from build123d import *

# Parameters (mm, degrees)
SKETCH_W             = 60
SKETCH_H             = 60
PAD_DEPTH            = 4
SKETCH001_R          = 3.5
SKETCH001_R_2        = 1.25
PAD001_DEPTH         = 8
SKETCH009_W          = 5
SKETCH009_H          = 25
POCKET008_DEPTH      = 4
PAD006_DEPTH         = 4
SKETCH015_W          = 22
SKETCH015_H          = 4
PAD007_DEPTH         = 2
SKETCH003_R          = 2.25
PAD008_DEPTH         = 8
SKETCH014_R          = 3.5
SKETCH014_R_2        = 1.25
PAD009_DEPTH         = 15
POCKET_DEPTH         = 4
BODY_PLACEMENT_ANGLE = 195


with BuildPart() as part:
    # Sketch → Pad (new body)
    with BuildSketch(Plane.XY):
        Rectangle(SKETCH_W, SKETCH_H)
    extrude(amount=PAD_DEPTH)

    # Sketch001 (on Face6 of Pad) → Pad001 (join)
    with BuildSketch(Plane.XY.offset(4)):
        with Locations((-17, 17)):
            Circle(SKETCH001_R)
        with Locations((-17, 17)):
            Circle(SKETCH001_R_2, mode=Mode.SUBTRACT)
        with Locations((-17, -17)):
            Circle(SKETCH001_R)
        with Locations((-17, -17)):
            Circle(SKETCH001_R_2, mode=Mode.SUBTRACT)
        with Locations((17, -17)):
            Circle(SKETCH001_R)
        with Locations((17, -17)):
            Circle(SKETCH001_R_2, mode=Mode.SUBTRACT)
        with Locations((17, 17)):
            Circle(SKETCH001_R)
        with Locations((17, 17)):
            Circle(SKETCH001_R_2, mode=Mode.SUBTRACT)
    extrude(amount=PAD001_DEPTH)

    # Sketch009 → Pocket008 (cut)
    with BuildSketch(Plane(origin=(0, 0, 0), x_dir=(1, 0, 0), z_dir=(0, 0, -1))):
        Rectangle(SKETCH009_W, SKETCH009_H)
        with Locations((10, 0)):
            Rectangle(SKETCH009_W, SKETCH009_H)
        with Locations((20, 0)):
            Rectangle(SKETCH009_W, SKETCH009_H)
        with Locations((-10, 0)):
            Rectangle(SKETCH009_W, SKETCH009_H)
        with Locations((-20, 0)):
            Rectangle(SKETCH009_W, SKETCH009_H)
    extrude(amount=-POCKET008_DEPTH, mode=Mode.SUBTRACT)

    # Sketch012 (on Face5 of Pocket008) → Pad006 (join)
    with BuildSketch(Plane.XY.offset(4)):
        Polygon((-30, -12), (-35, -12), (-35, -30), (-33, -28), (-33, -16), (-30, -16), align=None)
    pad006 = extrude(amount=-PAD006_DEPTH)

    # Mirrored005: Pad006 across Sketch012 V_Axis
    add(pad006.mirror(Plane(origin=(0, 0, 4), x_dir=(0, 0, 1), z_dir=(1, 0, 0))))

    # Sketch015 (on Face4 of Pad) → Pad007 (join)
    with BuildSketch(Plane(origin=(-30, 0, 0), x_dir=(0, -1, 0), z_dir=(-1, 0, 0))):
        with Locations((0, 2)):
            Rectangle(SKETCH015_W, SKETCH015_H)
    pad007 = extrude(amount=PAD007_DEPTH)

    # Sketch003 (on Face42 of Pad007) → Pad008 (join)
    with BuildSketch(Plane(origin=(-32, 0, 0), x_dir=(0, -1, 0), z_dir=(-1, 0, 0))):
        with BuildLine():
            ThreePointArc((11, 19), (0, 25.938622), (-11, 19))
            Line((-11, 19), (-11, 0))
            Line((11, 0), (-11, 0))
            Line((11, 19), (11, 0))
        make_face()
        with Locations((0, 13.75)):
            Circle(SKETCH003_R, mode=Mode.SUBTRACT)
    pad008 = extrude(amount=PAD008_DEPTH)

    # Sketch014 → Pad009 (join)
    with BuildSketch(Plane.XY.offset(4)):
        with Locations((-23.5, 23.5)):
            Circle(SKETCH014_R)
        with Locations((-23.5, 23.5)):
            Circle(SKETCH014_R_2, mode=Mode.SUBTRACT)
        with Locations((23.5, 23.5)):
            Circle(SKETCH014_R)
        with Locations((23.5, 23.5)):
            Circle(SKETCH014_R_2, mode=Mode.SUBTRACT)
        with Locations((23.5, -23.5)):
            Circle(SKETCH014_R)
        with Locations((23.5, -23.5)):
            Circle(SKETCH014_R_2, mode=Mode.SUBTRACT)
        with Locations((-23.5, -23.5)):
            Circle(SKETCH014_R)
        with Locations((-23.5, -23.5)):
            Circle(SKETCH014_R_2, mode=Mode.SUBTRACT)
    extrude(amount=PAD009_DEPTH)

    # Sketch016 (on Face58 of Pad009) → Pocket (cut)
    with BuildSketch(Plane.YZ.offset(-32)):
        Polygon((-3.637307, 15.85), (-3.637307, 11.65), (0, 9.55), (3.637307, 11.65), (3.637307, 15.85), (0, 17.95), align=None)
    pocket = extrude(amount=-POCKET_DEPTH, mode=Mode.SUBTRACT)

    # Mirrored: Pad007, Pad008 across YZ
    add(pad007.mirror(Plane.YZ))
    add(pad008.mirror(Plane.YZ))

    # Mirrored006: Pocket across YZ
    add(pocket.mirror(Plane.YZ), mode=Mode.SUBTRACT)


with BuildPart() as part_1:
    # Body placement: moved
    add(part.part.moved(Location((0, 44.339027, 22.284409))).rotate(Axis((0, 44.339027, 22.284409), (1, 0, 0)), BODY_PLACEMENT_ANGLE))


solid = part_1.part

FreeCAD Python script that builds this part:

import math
import FreeCAD as App
import Part
import Sketcher
Q = App.Units.Quantity


def add_polygon(sketch, points):
    """Adds a closed chain of lines whose ends are joined by coincident constraints."""
    first, n = sketch.GeometryCount, len(points)
    for a, b in zip(points, points[1:] + points[:1]):
        sketch.addGeometry(Part.LineSegment(App.Vector(*a, 0), App.Vector(*b, 0)), False)
    for i in range(n):
        sketch.addConstraint(Sketcher.Constraint("Coincident", first + i, 2, first + (i + 1) % n, 1))

doc = App.newDocument("Part")
body = doc.addObject("PartDesign::Body", "Body")

# Sketch on XY plane
sketch1 = body.newObject("Sketcher::SketchObject", "Sketch")
sketch1.AttachmentSupport = (doc.getObject("XY_Plane"), [""])
sketch1.MapMode = "FlatFace"
add_polygon(sketch1, [(-30, 30), (-30, -30), (30, -30), (30, 30)])  # lines 0-3
sketch1.addConstraint(Sketcher.Constraint("Vertical", 0))
sketch1.addConstraint(Sketcher.Constraint("Horizontal", 1))
sketch1.addConstraint(Sketcher.Constraint("Vertical", 2))
sketch1.addConstraint(Sketcher.Constraint("Horizontal", 3))
sketch1.addConstraint(Sketcher.Constraint("Symmetric", 0, 2, 2, 2, -1, 1))
sketch1.addConstraint(Sketcher.Constraint("Equal", 3, 0))
sketch1.addConstraint(Sketcher.Constraint("DistanceX", 1, 1, 1, 2, Q("60 mm")))
pad1 = body.newObject("PartDesign::Pad", "Pad")
pad1.Profile = sketch1
pad1.Length = 4

# Sketch on XY plane
sketch2 = body.newObject("Sketcher::SketchObject", "Sketch001")
sketch2.AttachmentSupport = (doc.getObject("XY_Plane"), [""])
sketch2.MapMode = "FlatFace"
sketch2.AttachmentOffset = App.Placement(App.Vector(0, 0, 4), App.Rotation())
sketch2.addGeometry(Part.Circle(App.Vector(-17, 17, 0), App.Vector(0, 0, 1), 3.5), False)
sketch2.addGeometry(Part.Circle(App.Vector(-17, 17, 0), App.Vector(0, 0, 1), 1.2), False)
sketch2.addGeometry(Part.Circle(App.Vector(-17, -17, 0), App.Vector(0, 0, 1), 3.5), False)
sketch2.addGeometry(Part.Circle(App.Vector(-17, -17, 0), App.Vector(0, 0, 1), 1.2), False)
sketch2.addGeometry(Part.Circle(App.Vector(17, -17, 0), App.Vector(0, 0, 1), 3.5), False)
sketch2.addGeometry(Part.Circle(App.Vector(17, -17, 0), App.Vector(0, 0, 1), 1.2), False)
sketch2.addGeometry(Part.Circle(App.Vector(17, 17, 0), App.Vector(0, 0, 1), 3.5), False)
sketch2.addGeometry(Part.Circle(App.Vector(17, 17, 0), App.Vector(0, 0, 1), 1.2), False)
sketch2.addConstraint(Sketcher.Constraint("Coincident", 1, 3, 0, 3))
sketch2.addConstraint(Sketcher.Constraint("Coincident", 3, 3, 2, 3))
sketch2.addConstraint(Sketcher.Constraint("Coincident", 5, 3, 4, 3))
sketch2.addConstraint(Sketcher.Constraint("Coincident", 7, 3, 6, 3))
sketch2.addConstraint(Sketcher.Constraint("Equal", 0, 2))
sketch2.addConstraint(Sketcher.Constraint("Equal", 1, 3))
sketch2.addConstraint(Sketcher.Constraint("Equal", 2, 4))
sketch2.addConstraint(Sketcher.Constraint("Equal", 3, 5))
sketch2.addConstraint(Sketcher.Constraint("Equal", 4, 6))
sketch2.addConstraint(Sketcher.Constraint("Equal", 5, 7))
sketch2.addConstraint(Sketcher.Constraint("Symmetric", 0, 3, 4, 3, -1, 1))
sketch2.addConstraint(Sketcher.Constraint("Symmetric", 2, 3, 6, 3, -1, 1))
sketch2.addConstraint(Sketcher.Constraint("Symmetric", 2, 3, 4, 3, -2))
sketch2.addConstraint(Sketcher.Constraint("Diameter", 0, Q("7 mm")))
sketch2.addConstraint(Sketcher.Constraint("Diameter", 1, Q("2.5 mm")))
sketch2.addConstraint(Sketcher.Constraint("DistanceX", 0, 3, -1, 1, Q("17 mm")))
sketch2.addConstraint(Sketcher.Constraint("DistanceY", -1, 1, 0, 3, Q("17 mm")))
pad2 = body.newObject("PartDesign::Pad", "Pad001")
pad2.Profile = sketch2
pad2.Length = 8

# Sketch on XY plane
sketch3 = body.newObject("Sketcher::SketchObject", "Sketch002")
sketch3.AttachmentSupport = (doc.getObject("XY_Plane"), [""])
sketch3.MapMode = "FlatFace"
add_polygon(sketch3, [(-2, -12), (-2, 12), (2, 12), (2, -12)])  # lines 0-3
add_polygon(sketch3, [(8, -12), (8, 12), (12, 12), (12, -12)])  # lines 4-7
add_polygon(sketch3, [(18, -12), (18, 12), (22, 12), (22, -12)])  # lines 8-11
add_polygon(sketch3, [(-12, -12), (-12, 12), (-8, 12), (-8, -12)])  # lines 12-15
add_polygon(sketch3, [(-22, -12), (-22, 12), (-18, 12), (-18, -12)])  # lines 16-19
sketch3.addConstraint(Sketcher.Constraint("Vertical", 0))
sketch3.addConstraint(Sketcher.Constraint("Horizontal", 1))
sketch3.addConstraint(Sketcher.Constraint("Vertical", 2))
sketch3.addConstraint(Sketcher.Constraint("Horizontal", 3))
sketch3.addConstraint(Sketcher.Constraint("Vertical", 4))
sketch3.addConstraint(Sketcher.Constraint("Horizontal", 5))
sketch3.addConstraint(Sketcher.Constraint("Vertical", 6))
sketch3.addConstraint(Sketcher.Constraint("Horizontal", 7))
sketch3.addConstraint(Sketcher.Constraint("Vertical", 8))
sketch3.addConstraint(Sketcher.Constraint("Horizontal", 9))
sketch3.addConstraint(Sketcher.Constraint("Vertical", 10))
sketch3.addConstraint(Sketcher.Constraint("Horizontal", 11))
sketch3.addConstraint(Sketcher.Constraint("Vertical", 12))
sketch3.addConstraint(Sketcher.Constraint("Horizontal", 13))
sketch3.addConstraint(Sketcher.Constraint("Vertical", 14))
sketch3.addConstraint(Sketcher.Constraint("Horizontal", 15))
sketch3.addConstraint(Sketcher.Constraint("Vertical", 16))
sketch3.addConstraint(Sketcher.Constraint("Horizontal", 17))
sketch3.addConstraint(Sketcher.Constraint("Vertical", 18))
sketch3.addConstraint(Sketcher.Constraint("Horizontal", 19))
sketch3.addConstraint(Sketcher.Constraint("Symmetric", 0, 2, 2, 2, -1, 1))
sketch3.addConstraint(Sketcher.Constraint("Symmetric", 6, 2, 12, 2, -1, 1))
sketch3.addConstraint(Sketcher.Constraint("Symmetric", 4, 2, 14, 2, -1, 1))
sketch3.addConstraint(Sketcher.Constraint("Symmetric", 10, 2, 16, 2, -1, 1))
sketch3.addConstraint(Sketcher.Constraint("Symmetric", 8, 2, 18, 2, -1, 1))
sketch3.addConstraint(Sketcher.Constraint("Horizontal", 1, 2, 4, 2))
sketch3.addConstraint(Sketcher.Constraint("Horizontal", 3, 2, 6, 2))
sketch3.addConstraint(Sketcher.Constraint("Horizontal", 5, 2, 8, 2))
sketch3.addConstraint(Sketcher.Constraint("Horizontal", 7, 2, 10, 2))
sketch3.addConstraint(Sketcher.Constraint("Equal", 3, 5))
sketch3.addConstraint(Sketcher.Constraint("Equal", 7, 9))
sketch3.addConstraint(Sketcher.Constraint("DistanceX", 1, 1, 1, 2, Q("5 mm")))
sketch3.addConstraint(Sketcher.Constraint("DistanceY", 0, 1, 0, 2, Q("25 mm")))
sketch3.addConstraint(Sketcher.Constraint("DistanceX", 1, 2, 4, 2, Q("5 mm")))
sketch3.addConstraint(Sketcher.Constraint("DistanceX", 5, 2, 8, 2, Q("5 mm")))
pocket1 = body.newObject("PartDesign::Pocket", "Pocket")
pocket1.Profile = sketch3
pocket1.Length = 4
pocket1.Reversed = True

# Sketch on XY plane
sketch4 = body.newObject("Sketcher::SketchObject", "Sketch003")
sketch4.AttachmentSupport = (doc.getObject("XY_Plane"), [""])
sketch4.MapMode = "FlatFace"
sketch4.AttachmentOffset = App.Placement(App.Vector(0, 0, 4), App.Rotation())
add_polygon(sketch4, [(-30, -12), (-35, -12), (-35, -30), (-33, -28), (-33, -16), (-30, -16)])  # lines 0-5
sketch4.addConstraint(Sketcher.Constraint("Horizontal", 0))
sketch4.addConstraint(Sketcher.Constraint("Vertical", 1))
sketch4.addConstraint(Sketcher.Constraint("Vertical", 3))
sketch4.addConstraint(Sketcher.Constraint("Horizontal", 4))
sketch4.addConstraint(Sketcher.Constraint("Vertical", 5))
sketch4.addConstraint(Sketcher.Constraint("DistanceX", 0, 2, 0, 1, Q("5 mm")))
sketch4.addConstraint(Sketcher.Constraint("DistanceX", 4, 1, 4, 2, Q("3 mm")))
sketch4.addConstraint(Sketcher.Constraint("DistanceY", 1, 2, 1, 1, Q("18 mm")))
sketch4.addConstraint(Sketcher.Constraint("DistanceY", 3, 1, 3, 2, Q("12 mm")))
sketch4.addConstraint(Sketcher.Constraint("DistanceY", 5, 1, 5, 2, Q("4 mm")))
sketch4.addConstraint(Sketcher.Constraint("DistanceX", 0, 2, -1, 1, Q("35 mm")))
sketch4.addConstraint(Sketcher.Constraint("DistanceY", 0, 2, -1, 1, Q("12 mm")))
pad3 = body.newObject("PartDesign::Pad", "Pad002")
pad3.Profile = sketch4
pad3.Length = 4
pad3.Reversed = True
doc.recompute()

mirrored = body.newObject("PartDesign::Mirrored", "Mirrored")
mirrored.Originals = [pad3]
mirrored.MirrorPlane = (doc.getObject("YZ_Plane"), [""])
body.Tip = mirrored

# Sketch on YZ plane
sketch5 = body.newObject("Sketcher::SketchObject", "Sketch004")
sketch5.AttachmentSupport = (doc.getObject("YZ_Plane"), [""])
sketch5.MapMode = "FlatFace"
sketch5.AttachmentOffset = App.Placement(App.Vector(0, 0, -30), App.Rotation())
add_polygon(sketch5, [(11, 4), (11, 0), (-11, 0), (-11, 4)])  # lines 0-3
sketch5.addConstraint(Sketcher.Constraint("Vertical", 0))
sketch5.addConstraint(Sketcher.Constraint("Horizontal", 1))
sketch5.addConstraint(Sketcher.Constraint("Vertical", 2))
sketch5.addConstraint(Sketcher.Constraint("Horizontal", 3))
sketch5.addConstraint(Sketcher.Constraint("Symmetric", 0, 2, 1, 2, -1, 1))
sketch5.addConstraint(Sketcher.Constraint("DistanceX", 1, 2, 1, 1, Q("22 mm")))
sketch5.addConstraint(Sketcher.Constraint("DistanceY", 0, 2, 0, 1, Q("4 mm")))
pad4 = body.newObject("PartDesign::Pad", "Pad003")
pad4.Profile = sketch5
pad4.Length = 2
pad4.Reversed = True

# Sketch on YZ plane
sketch6 = body.newObject("Sketcher::SketchObject", "Sketch005")
sketch6.AttachmentSupport = (doc.getObject("YZ_Plane"), [""])
sketch6.MapMode = "FlatFace"
sketch6.AttachmentOffset = App.Placement(App.Vector(0, 0, -32), App.Rotation())
sketch6.addGeometry(Part.ArcOfCircle(Part.Circle(App.Vector(0, 13.8, 0), App.Vector(0, 0, 1), 12.2), math.radians(26), math.radians(154)), False)
sketch6.addGeometry(Part.LineSegment(App.Vector(11, 19, 0), App.Vector(11, 0, 0)), False)
sketch6.addGeometry(Part.LineSegment(App.Vector(11, 0, 0), App.Vector(-11, 0, 0)), False)
sketch6.addGeometry(Part.LineSegment(App.Vector(-11, 0, 0), App.Vector(-11, 19, 0)), False)
sketch6.addGeometry(Part.Circle(App.Vector(0, 13.8, 0), App.Vector(0, 0, 1), 2.2), False)
sketch6.addConstraint(Sketcher.Constraint("Coincident", 0, 1, 1, 1))
sketch6.addConstraint(Sketcher.Constraint("Coincident", 1, 2, 2, 1))
sketch6.addConstraint(Sketcher.Constraint("Coincident", 2, 2, 3, 1))
sketch6.addConstraint(Sketcher.Constraint("Coincident", 3, 2, 0, 2))
sketch6.addConstraint(Sketcher.Constraint("Vertical", 1))
sketch6.addConstraint(Sketcher.Constraint("Horizontal", 2))
sketch6.addConstraint(Sketcher.Constraint("Vertical", 3))
sketch6.addConstraint(Sketcher.Constraint("Coincident", 4, 3, 0, 3))
sketch6.addConstraint(Sketcher.Constraint("Symmetric", 1, 2, 2, 2, -1, 1))
sketch6.addConstraint(Sketcher.Constraint("PointOnObject", 0, 3, -2))
sketch6.addConstraint(Sketcher.Constraint("Diameter", 4, Q("4.5 mm")))
sketch6.addConstraint(Sketcher.Constraint("DistanceX", 2, 2, 2, 1, Q("22 mm")))
sketch6.addConstraint(Sketcher.Constraint("DistanceY", 1, 2, 1, 1, Q("19 mm")))
sketch6.addConstraint(Sketcher.Constraint("DistanceY", -1, 1, 0, 3, Q("13.75 mm")))
pad5 = body.newObject("PartDesign::Pad", "Pad004")
pad5.Profile = sketch6
pad5.Length = 8
pad5.Reversed = True

# Sketch on XY plane
sketch7 = body.newObject("Sketcher::SketchObject", "Sketch006")
sketch7.AttachmentSupport = (doc.getObject("XY_Plane"), [""])
sketch7.MapMode = "FlatFace"
sketch7.AttachmentOffset = App.Placement(App.Vector(0, 0, 4), App.Rotation())
sketch7.addGeometry(Part.Circle(App.Vector(-23.5, 23.5, 0), App.Vector(0, 0, 1), 3.5), False)
sketch7.addGeometry(Part.Circle(App.Vector(-23.5, 23.5, 0), App.Vector(0, 0, 1), 1.2), False)
sketch7.addGeometry(Part.Circle(App.Vector(23.5, 23.5, 0), App.Vector(0, 0, 1), 3.5), False)
sketch7.addGeometry(Part.Circle(App.Vector(23.5, 23.5, 0), App.Vector(0, 0, 1), 1.2), False)
sketch7.addGeometry(Part.Circle(App.Vector(23.5, -23.5, 0), App.Vector(0, 0, 1), 3.5), False)
sketch7.addGeometry(Part.Circle(App.Vector(23.5, -23.5, 0), App.Vector(0, 0, 1), 1.2), False)
sketch7.addGeometry(Part.Circle(App.Vector(-23.5, -23.5, 0), App.Vector(0, 0, 1), 3.5), False)
sketch7.addGeometry(Part.Circle(App.Vector(-23.5, -23.5, 0), App.Vector(0, 0, 1), 1.2), False)
sketch7.addConstraint(Sketcher.Constraint("Coincident", 1, 3, 0, 3))
sketch7.addConstraint(Sketcher.Constraint("Coincident", 3, 3, 2, 3))
sketch7.addConstraint(Sketcher.Constraint("Coincident", 5, 3, 4, 3))
sketch7.addConstraint(Sketcher.Constraint("Coincident", 7, 3, 6, 3))
sketch7.addConstraint(Sketcher.Constraint("Equal", 0, 2))
sketch7.addConstraint(Sketcher.Constraint("Equal", 1, 3))
sketch7.addConstraint(Sketcher.Constraint("Equal", 2, 4))
sketch7.addConstraint(Sketcher.Constraint("Equal", 3, 5))
sketch7.addConstraint(Sketcher.Constraint("Equal", 4, 6))
sketch7.addConstraint(Sketcher.Constraint("Equal", 5, 7))
sketch7.addConstraint(Sketcher.Constraint("Symmetric", 0, 3, 4, 3, -1, 1))
sketch7.addConstraint(Sketcher.Constraint("Symmetric", 2, 3, 6, 3, -1, 1))
sketch7.addConstraint(Sketcher.Constraint("Symmetric", 0, 3, 2, 3, -2))
sketch7.addConstraint(Sketcher.Constraint("Diameter", 0, Q("7 mm")))
sketch7.addConstraint(Sketcher.Constraint("Diameter", 1, Q("2.5 mm")))
sketch7.addConstraint(Sketcher.Constraint("DistanceX", 0, 3, 2, 3, Q("47 mm")))
sketch7.addConstraint(Sketcher.Constraint("DistanceY", 4, 3, 2, 3, Q("47 mm")))
pad6 = body.newObject("PartDesign::Pad", "Pad005")
pad6.Profile = sketch7
pad6.Length = 15

# Sketch on YZ plane
sketch8 = body.newObject("Sketcher::SketchObject", "Sketch007")
sketch8.AttachmentSupport = (doc.getObject("YZ_Plane"), [""])
sketch8.MapMode = "FlatFace"
sketch8.AttachmentOffset = App.Placement(App.Vector(0, 0, -32), App.Rotation())
add_polygon(sketch8, [(-3.6, 15.8), (-3.6, 11.7), (0, 9.6), (3.6, 11.7), (3.6, 15.8), (0, 17.9)])  # lines 0-5
sketch8.addConstraint(Sketcher.Constraint("Vertical", 0))
sketch8.addConstraint(Sketcher.Constraint("Vertical", 3))
sketch8.addConstraint(Sketcher.Constraint("Symmetric", 0, 2, 2, 2, -2))
sketch8.addConstraint(Sketcher.Constraint("PointOnObject", 1, 2, -2))
sketch8.addConstraint(Sketcher.Constraint("PointOnObject", 4, 2, -2))
sketch8.addConstraint(Sketcher.Constraint("Parallel", 1, 4))
sketch8.addConstraint(Sketcher.Constraint("Parallel", 2, 5))
sketch8.addConstraint(Sketcher.Constraint("Angle", 1, Q("-29.999998 deg")))
sketch8.addConstraint(Sketcher.Constraint("DistanceY", 0, 2, 0, 1, Q("4.2 mm")))
sketch8.addConstraint(Sketcher.Constraint("Distance", 1, Q("4.2 mm")))
sketch8.addConstraint(Sketcher.Constraint("DistanceY", -1, 1, 0, 2, Q("11.65 mm")))
pocket2 = body.newObject("PartDesign::Pocket", "Pocket001")
pocket2.Profile = sketch8
pocket2.Length = 4
doc.recompute()

mirrored2 = body.newObject("PartDesign::Mirrored", "Mirrored001")
mirrored2.Originals = [pad4, pad5]
mirrored2.MirrorPlane = (doc.getObject("YZ_Plane"), [""])
body.Tip = mirrored2
doc.recompute()

mirrored3 = body.newObject("PartDesign::Mirrored", "Mirrored002")
mirrored3.Originals = [pocket2]
mirrored3.MirrorPlane = (doc.getObject("YZ_Plane"), [""])
body.Tip = mirrored3
body2 = doc.addObject("PartDesign::Body", "Body001")
doc.recompute()

body.Placement = App.Placement(App.Vector(0, 44.339027, 22.284409), App.Rotation(App.Vector(1, 0, 0), 195))
boolean = body2.newObject("PartDesign::Boolean", "Boolean")
boolean.Type = "Fuse"
boolean.addObjects([body])

doc.recompute()
